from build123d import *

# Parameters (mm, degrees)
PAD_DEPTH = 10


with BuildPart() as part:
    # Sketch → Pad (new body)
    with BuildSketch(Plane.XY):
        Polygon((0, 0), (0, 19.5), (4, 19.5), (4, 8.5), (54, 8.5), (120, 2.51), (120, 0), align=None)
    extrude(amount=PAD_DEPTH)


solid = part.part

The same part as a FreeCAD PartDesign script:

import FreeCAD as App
import Part
import Sketcher
from FreeCAD import Vector

doc = App.newDocument("Part")
body = doc.addObject("PartDesign::Body", "Body")

# Sketch on XY plane
sketch1 = body.newObject("Sketcher::SketchObject", "Sketch")
sketch1.AttachmentSupport = (doc.getObject("XY_Plane"), [""])
sketch1.MapMode = "FlatFace"
sketch1.addGeometry(Part.LineSegment(Vector(0, 19.5, 0), Vector(0, 0, 0)), False)
sketch1.addGeometry(Part.LineSegment(Vector(0, 0, 0), Vector(120, 0, 0)), False)
sketch1.addGeometry(Part.LineSegment(Vector(120, 0, 0), Vector(120, 2.5, 0)), False)
sketch1.addGeometry(Part.LineSegment(Vector(120, 2.5, 0), Vector(54, 8.5, 0)), False)
sketch1.addGeometry(Part.LineSegment(Vector(54, 8.5, 0), Vector(4, 8.5, 0)), False)
sketch1.addGeometry(Part.LineSegment(Vector(4, 8.5, 0), Vector(4, 19.5, 0)), False)
sketch1.addGeometry(Part.LineSegment(Vector(4, 19.5, 0), Vector(0, 19.5, 0)), False)
sketch1.addConstraint(Sketcher.Constraint("Coincident", 0, 2, 1, 1))
sketch1.addConstraint(Sketcher.Constraint("Coincident", 1, 2, 2, 1))
sketch1.addConstraint(Sketcher.Constraint("Coincident", 2, 2, 3, 1))
sketch1.addConstraint(Sketcher.Constraint("Coincident", 3, 2, 4, 1))
sketch1.addConstraint(Sketcher.Constraint("Coincident", 4, 2, 5, 1))
sketch1.addConstraint(Sketcher.Constraint("Coincident", 5, 2, 6, 1))
sketch1.addConstraint(Sketcher.Constraint("Coincident", 6, 2, 0, 1))
sketch1.addConstraint(Sketcher.Constraint("Vertical", 0))
sketch1.addConstraint(Sketcher.Constraint("Horizontal", 1))
sketch1.addConstraint(Sketcher.Constraint("Vertical", 2))
sketch1.addConstraint(Sketcher.Constraint("Horizontal", 4))
sketch1.addConstraint(Sketcher.Constraint("Vertical", 5))
sketch1.addConstraint(Sketcher.Constraint("Horizontal", 6))
sketch1.addConstraint(Sketcher.Constraint("Coincident", 0, 2, -1, 1))
sketch1.addConstraint(Sketcher.Constraint("DistanceX", 1, 1, 1, 2, 120.0))
sketch1.addConstraint(Sketcher.Constraint("DistanceX", 4, 2, 4, 1, 50.0))
sketch1.addConstraint(Sketcher.Constraint("DistanceX", 6, 2, 6, 1, 4.0))
sketch1.addConstraint(Sketcher.Constraint("DistanceY", 5, 1, 5, 2, 11.0))
sketch1.addConstraint(Sketcher.Constraint("DistanceY", 0, 2, 0, 1, 19.5))
sketch1.addConstraint(Sketcher.Constraint("DistanceY", 2, 1, 2, 2, 2.51))
pad1 = body.newObject("PartDesign::Pad", "Pad")
pad1.Profile = sketch1
pad1.Length = 10

doc.recompute()
